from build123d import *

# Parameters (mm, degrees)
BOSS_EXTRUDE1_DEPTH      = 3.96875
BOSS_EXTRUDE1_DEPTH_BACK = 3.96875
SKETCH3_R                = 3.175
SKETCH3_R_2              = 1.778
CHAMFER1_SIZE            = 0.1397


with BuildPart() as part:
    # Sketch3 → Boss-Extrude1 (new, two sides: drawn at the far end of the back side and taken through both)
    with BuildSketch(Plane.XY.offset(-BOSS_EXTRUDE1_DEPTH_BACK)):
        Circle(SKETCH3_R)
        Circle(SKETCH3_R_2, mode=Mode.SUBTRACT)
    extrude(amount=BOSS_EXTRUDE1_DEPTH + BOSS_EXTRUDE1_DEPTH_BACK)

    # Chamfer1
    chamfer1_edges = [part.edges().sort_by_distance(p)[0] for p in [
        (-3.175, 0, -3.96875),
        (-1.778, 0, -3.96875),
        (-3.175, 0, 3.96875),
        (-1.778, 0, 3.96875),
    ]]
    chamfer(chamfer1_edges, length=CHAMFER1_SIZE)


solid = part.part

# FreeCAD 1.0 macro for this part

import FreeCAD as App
import Part
import Sketcher
from FreeCAD import Vector
Q = App.Units.Quantity


def edges_at(feature, points):
    """Names of the edges that pass closest to the given points."""
    edges = feature.Shape.Edges
    near = lambda p: min(range(len(edges)), key=lambda i: edges[i].distToShape(Part.Vertex(*p))[0])
    return sorted({f"Edge{near(p) + 1}" for p in points})

doc = App.newDocument("Part")
body = doc.addObject("PartDesign::Body", "Body")

# Sketch on XY plane
sketch1 = body.newObject("Sketcher::SketchObject", "Sketch")
sketch1.AttachmentSupport = (doc.getObject("XY_Plane"), [""])
sketch1.MapMode = "FlatFace"
sketch1.addGeometry(Part.Circle(Vector(0, 0, 0), Vector(0, 0, 1), 3.2), False)
sketch1.addGeometry(Part.Circle(Vector(0, 0, 0), Vector(0, 0, 1), 1.8), False)
sketch1.addConstraint(Sketcher.Constraint("Coincident", 0, 3, -1, 1))
sketch1.addConstraint(Sketcher.Constraint("Coincident", 1, 3, -1, 1))
sketch1.addConstraint(Sketcher.Constraint("Diameter", 0, Q("0.25 in")))
sketch1.addConstraint(Sketcher.Constraint("Diameter", 1, Q("0.14 in")))
pad1 = body.newObject("PartDesign::Pad", "Pad")
pad1.Profile = sketch1
pad1.Type = "TwoLengths"
pad1.Length = Q("0.15625 in")
pad1.Length2 = Q("0.15625 in")
doc.recompute()

chamfer = body.newObject("PartDesign::Chamfer", "Chamfer")
chamfer.Base = (pad1, edges_at(pad1, [
    (-3.175, 0, -3.969),
    (-1.778, 0, -3.969),
    (-3.175, 0, 3.969),
    (-1.778, 0, 3.969),
]))
chamfer.Size = Q("0.0055 in")

doc.recompute()
